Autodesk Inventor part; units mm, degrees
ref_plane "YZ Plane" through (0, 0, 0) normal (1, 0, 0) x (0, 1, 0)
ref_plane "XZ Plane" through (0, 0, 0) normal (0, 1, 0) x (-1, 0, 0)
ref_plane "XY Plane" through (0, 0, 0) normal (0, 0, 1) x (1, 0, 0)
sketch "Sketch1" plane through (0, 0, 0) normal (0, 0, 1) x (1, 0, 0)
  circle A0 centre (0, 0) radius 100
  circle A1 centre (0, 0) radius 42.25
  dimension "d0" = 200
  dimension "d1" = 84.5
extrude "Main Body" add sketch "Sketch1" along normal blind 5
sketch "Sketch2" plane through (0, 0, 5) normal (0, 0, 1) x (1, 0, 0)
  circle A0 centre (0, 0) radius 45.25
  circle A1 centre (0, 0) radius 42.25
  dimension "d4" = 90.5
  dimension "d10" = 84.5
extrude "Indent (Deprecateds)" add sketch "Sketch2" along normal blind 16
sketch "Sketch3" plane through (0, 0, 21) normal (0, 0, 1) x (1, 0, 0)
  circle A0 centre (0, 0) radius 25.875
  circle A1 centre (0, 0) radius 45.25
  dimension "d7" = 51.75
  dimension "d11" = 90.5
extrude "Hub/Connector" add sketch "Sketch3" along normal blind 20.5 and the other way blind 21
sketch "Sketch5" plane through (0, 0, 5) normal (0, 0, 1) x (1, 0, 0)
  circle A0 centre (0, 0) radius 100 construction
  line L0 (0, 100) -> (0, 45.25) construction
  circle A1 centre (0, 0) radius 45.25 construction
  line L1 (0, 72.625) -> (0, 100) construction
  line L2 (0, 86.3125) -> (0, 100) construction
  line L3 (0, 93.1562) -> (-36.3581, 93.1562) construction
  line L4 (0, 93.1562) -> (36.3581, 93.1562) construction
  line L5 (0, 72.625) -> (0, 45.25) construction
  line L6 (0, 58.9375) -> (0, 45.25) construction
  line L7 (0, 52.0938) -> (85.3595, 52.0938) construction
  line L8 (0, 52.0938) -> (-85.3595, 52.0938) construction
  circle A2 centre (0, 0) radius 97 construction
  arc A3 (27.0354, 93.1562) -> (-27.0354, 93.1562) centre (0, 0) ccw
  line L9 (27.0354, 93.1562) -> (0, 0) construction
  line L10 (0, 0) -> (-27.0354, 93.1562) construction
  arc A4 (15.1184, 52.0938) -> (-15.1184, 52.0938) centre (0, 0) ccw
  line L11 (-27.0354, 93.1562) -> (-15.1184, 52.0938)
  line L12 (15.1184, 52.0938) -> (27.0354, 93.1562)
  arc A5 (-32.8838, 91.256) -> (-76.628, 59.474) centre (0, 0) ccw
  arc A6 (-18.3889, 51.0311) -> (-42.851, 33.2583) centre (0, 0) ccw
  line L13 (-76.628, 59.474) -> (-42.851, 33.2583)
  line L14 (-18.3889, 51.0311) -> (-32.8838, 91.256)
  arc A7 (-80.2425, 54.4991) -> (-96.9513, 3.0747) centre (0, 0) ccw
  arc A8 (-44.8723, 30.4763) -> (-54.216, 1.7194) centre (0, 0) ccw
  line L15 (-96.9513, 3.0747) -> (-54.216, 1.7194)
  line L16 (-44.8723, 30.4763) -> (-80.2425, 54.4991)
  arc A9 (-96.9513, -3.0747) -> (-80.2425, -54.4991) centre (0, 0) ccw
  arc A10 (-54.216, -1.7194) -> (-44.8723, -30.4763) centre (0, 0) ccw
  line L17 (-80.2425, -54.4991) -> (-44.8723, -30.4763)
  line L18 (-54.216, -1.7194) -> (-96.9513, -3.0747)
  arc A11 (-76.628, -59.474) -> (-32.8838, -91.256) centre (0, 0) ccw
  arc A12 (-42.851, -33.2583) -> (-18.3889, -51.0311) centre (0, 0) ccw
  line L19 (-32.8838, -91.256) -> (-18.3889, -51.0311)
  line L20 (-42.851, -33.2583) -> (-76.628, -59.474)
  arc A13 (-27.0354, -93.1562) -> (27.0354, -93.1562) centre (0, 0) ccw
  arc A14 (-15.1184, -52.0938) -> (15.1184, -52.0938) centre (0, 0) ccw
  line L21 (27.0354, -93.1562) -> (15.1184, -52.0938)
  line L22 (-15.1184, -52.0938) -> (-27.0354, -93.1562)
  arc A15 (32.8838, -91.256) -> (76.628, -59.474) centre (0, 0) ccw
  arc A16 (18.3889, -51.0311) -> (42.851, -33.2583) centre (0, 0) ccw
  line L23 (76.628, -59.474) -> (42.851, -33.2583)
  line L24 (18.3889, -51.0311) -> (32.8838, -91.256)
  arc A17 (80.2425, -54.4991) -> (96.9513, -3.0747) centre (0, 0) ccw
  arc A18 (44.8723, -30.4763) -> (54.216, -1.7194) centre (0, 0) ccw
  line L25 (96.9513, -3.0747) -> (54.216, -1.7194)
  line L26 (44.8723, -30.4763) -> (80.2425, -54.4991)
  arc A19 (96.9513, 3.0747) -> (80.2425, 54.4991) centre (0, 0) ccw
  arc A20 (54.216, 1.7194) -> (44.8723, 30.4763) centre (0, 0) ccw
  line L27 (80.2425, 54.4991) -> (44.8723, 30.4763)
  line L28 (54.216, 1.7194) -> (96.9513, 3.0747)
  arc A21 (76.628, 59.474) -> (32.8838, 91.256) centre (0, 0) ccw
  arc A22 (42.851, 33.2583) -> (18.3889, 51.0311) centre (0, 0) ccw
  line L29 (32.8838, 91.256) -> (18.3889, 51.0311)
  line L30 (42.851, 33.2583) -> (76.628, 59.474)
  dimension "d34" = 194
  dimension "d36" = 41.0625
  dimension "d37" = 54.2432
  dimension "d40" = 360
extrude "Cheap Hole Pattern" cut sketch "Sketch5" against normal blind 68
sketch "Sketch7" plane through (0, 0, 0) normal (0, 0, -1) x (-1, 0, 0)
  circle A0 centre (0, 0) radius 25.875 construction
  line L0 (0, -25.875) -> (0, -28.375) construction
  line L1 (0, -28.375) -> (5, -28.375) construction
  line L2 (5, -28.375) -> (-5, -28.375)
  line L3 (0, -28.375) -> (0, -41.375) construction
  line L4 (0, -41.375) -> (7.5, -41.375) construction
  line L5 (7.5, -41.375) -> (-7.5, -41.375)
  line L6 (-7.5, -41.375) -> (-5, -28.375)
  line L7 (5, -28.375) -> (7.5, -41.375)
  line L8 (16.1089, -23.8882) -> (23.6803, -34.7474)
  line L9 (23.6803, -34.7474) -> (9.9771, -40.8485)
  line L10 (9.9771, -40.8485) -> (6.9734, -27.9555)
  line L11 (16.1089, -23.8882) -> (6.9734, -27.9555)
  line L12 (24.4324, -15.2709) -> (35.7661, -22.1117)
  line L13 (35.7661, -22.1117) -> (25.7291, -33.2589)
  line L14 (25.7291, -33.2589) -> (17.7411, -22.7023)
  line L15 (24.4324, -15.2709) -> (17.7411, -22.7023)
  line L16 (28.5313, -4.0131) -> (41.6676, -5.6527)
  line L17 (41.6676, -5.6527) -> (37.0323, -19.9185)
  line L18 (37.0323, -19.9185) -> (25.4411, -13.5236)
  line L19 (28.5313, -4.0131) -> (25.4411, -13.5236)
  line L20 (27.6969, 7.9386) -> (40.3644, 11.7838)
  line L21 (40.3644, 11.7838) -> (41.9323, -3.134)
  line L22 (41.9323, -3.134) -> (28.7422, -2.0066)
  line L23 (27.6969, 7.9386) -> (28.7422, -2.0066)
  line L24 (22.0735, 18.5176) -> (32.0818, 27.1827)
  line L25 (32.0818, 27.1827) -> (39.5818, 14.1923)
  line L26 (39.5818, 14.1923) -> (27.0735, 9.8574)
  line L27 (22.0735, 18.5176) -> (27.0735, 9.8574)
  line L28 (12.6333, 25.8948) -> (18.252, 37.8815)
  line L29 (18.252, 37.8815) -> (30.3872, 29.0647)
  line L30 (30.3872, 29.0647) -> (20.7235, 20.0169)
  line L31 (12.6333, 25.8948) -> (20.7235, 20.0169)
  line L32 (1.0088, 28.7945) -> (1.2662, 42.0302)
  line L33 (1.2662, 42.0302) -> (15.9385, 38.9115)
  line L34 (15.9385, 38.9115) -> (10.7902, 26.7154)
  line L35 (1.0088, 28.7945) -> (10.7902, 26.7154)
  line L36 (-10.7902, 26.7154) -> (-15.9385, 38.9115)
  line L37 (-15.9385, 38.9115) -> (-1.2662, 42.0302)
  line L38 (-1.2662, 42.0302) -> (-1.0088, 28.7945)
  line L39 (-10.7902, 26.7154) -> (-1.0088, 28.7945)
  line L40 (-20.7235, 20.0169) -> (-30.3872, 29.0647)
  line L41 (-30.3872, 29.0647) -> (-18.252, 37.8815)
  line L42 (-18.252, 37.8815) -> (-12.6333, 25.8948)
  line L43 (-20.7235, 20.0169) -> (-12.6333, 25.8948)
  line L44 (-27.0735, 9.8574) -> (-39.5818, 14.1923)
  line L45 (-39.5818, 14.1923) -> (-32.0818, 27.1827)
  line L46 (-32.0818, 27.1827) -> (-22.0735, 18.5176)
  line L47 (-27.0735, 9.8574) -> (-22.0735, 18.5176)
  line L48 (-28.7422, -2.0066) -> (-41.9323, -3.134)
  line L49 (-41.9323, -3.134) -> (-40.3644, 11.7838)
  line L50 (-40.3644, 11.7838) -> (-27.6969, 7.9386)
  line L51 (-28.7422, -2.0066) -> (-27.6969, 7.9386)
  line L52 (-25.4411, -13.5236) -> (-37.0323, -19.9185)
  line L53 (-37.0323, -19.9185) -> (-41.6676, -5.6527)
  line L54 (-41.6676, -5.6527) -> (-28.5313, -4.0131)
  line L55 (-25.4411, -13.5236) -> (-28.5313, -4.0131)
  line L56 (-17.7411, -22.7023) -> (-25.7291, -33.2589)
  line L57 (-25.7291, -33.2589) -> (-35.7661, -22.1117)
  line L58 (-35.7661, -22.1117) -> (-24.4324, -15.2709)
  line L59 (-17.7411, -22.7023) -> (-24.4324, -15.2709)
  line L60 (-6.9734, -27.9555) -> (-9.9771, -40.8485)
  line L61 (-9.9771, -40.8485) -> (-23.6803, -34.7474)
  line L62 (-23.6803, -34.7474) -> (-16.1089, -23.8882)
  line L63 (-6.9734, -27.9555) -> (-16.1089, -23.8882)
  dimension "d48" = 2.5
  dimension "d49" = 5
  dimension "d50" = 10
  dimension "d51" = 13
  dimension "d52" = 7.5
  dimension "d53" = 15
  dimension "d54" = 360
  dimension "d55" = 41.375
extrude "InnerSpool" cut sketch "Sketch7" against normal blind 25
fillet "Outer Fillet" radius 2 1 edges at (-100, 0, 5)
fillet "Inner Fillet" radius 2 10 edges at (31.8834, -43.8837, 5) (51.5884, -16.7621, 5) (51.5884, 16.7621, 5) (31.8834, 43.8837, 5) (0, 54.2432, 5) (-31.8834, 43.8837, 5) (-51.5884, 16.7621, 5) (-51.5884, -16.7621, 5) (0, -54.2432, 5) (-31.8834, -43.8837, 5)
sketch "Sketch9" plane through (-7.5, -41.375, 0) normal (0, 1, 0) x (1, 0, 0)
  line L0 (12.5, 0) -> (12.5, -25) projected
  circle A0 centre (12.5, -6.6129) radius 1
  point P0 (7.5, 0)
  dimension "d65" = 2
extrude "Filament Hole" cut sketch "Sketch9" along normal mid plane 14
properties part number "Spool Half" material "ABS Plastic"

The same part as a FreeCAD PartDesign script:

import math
import FreeCAD as App
import Part
import Sketcher
Q = App.Units.Quantity


def edges_at(feature, points):
    """Names of the edges that pass closest to the given points."""
    edges = feature.Shape.Edges
    near = lambda p: min(range(len(edges)), key=lambda i: edges[i].distToShape(Part.Vertex(*p))[0])
    return sorted({f"Edge{near(p) + 1}" for p in points})


def add_polygon(sketch, points):
    """Adds a closed chain of lines whose ends are joined by coincident constraints."""
    first, n = sketch.GeometryCount, len(points)
    for a, b in zip(points, points[1:] + points[:1]):
        sketch.addGeometry(Part.LineSegment(App.Vector(*a, 0), App.Vector(*b, 0)), False)
    for i in range(n):
        sketch.addConstraint(Sketcher.Constraint("Coincident", first + i, 2, first + (i + 1) % n, 1))

doc = App.newDocument("Part")
params = doc.addObject("Spreadsheet::Sheet", "Params")
for row, (alias, value) in enumerate([
    ("sketch1_diameter", "200 mm"),
    ("sketch1_diameter2", "84.5 mm"),
    ("pad1_length", "5 mm"),
    ("sketch2_diameter", "90.5 mm"),
    ("sketch2_diameter2", "84.5 mm"),
    ("pad2_length", "16 mm"),
    ("sketch3_diameter", "90.5 mm"),
    ("sketch3_diameter2", "51.75 mm"),
    ("pad3_length", "20.5 mm"),
    ("pad3_length2", "21 mm"),
    ("sketch4_radius", "97 mm"),
    ("pocket1_length", "68 mm"),
    ("sketch5_width", "10 mm"),
    ("sketch5_width2", "15 mm"),
    ("sketch5_length", "10 mm"),
    ("sketch5_length2", "15 mm"),
    ("pocket2_length", "25 mm"),
    ("fillet_radius", "2 mm"),
    ("fillet2_radius", "2 mm"),
    ("sketch6_diameter", "2 mm"),
    ("pocket3_length", "14 mm"),
], start=1):
    params.set(f"A{row}", alias)
    params.set(f"B{row}", "=" + value)
    params.setAlias(f"B{row}", alias)

body = doc.addObject("PartDesign::Body", "Body")

# Sketch on XY plane
sketch1 = doc.addObject("Sketcher::SketchObject", "Sketch")
body.addObject(sketch1)
sketch1.AttachmentSupport = (doc.XY_Plane, [""])
sketch1.MapMode = "FlatFace"
sketch1.addGeometry([
    Part.Circle(App.Vector(0, 0, 0), App.Vector(0, 0, 1), 100),
    Part.Circle(App.Vector(0, 0, 0), App.Vector(0, 0, 1), 42),
], False)
sketch1.addConstraint([
    Sketcher.Constraint("Coincident", 0, 3, -1, 1),
    Sketcher.Constraint("Coincident", 1, 3, -1, 1),
    Sketcher.Constraint("Diameter", 0, 200.0),
    Sketcher.Constraint("Diameter", 1, 84.5),
])
sketch1.setExpression("Constraints[2]", "Params.sketch1_diameter")
sketch1.setExpression("Constraints[3]", "Params.sketch1_diameter2")
pad1 = doc.addObject("PartDesign::Pad", "Pad")
body.addObject(pad1)
pad1.Profile = sketch1
pad1.setExpression("Length", "Params.pad1_length")

# Sketch on XY plane
sketch2 = doc.addObject("Sketcher::SketchObject", "Sketch001")
body.addObject(sketch2)
sketch2.AttachmentSupport = (doc.XY_Plane, [""])
sketch2.MapMode = "FlatFace"
sketch2.AttachmentOffset = App.Placement(App.Vector(0, 0, 5), App.Rotation())
sketch2.addGeometry([
    Part.Circle(App.Vector(0, 0, 0), App.Vector(0, 0, 1), 45),
    Part.Circle(App.Vector(0, 0, 0), App.Vector(0, 0, 1), 42),
], False)
sketch2.addConstraint([
    Sketcher.Constraint("Coincident", 0, 3, -1, 1),
    Sketcher.Constraint("Coincident", 1, 3, -1, 1),
    Sketcher.Constraint("Diameter", 0, 90.5),
    Sketcher.Constraint("Diameter", 1, 84.5),
])
sketch2.setExpression("Constraints[2]", "Params.sketch2_diameter")
sketch2.setExpression("Constraints[3]", "Params.sketch2_diameter2")
pad2 = doc.addObject("PartDesign::Pad", "Pad001")
body.addObject(pad2)
pad2.Profile = sketch2
pad2.setExpression("Length", "Params.pad2_length")

# Sketch on XY plane
sketch3 = doc.addObject("Sketcher::SketchObject", "Sketch002")
body.addObject(sketch3)
sketch3.AttachmentSupport = (doc.XY_Plane, [""])
sketch3.MapMode = "FlatFace"
sketch3.AttachmentOffset = App.Placement(App.Vector(0, 0, 21), App.Rotation())
sketch3.addGeometry([
    Part.Circle(App.Vector(0, 0, 0), App.Vector(0, 0, 1), 45),
    Part.Circle(App.Vector(0, 0, 0), App.Vector(0, 0, 1), 26),
], False)
sketch3.addConstraint([
    Sketcher.Constraint("Coincident", 0, 3, -1, 1),
    Sketcher.Constraint("Coincident", 1, 3, -1, 1),
    Sketcher.Constraint("Diameter", 0, 90.5),
    Sketcher.Constraint("Diameter", 1, 51.75),
])
sketch3.setExpression("Constraints[2]", "Params.sketch3_diameter")
sketch3.setExpression("Constraints[3]", "Params.sketch3_diameter2")
pad3 = doc.addObject("PartDesign::Pad", "Pad002")
body.addObject(pad3)
pad3.Profile = sketch3
pad3.Type = "TwoLengths"
pad3.setExpression("Length", "Params.pad3_length")
pad3.setExpression("Length2", "Params.pad3_length2")

# Sketch on XY plane
sketch4 = doc.addObject("Sketcher::SketchObject", "Sketch003")
body.addObject(sketch4)
sketch4.AttachmentSupport = (doc.XY_Plane, [""])
sketch4.MapMode = "FlatFace"
sketch4.AttachmentOffset = App.Placement(App.Vector(0, 0, 5), App.Rotation())
sketch4.addGeometry([
    Part.LineSegment(App.Vector(15, 52, 0), App.Vector(27, 93, 0)),  # 0
    Part.ArcOfCircle(Part.Circle(App.Vector(0, 0, 0), App.Vector(0, 0, 1), 97), math.radians(74), math.radians(106)),  # 1
    Part.LineSegment(App.Vector(-27, 93, 0), App.Vector(-15, 52, 0)),  # 2
    Part.ArcOfCircle(Part.Circle(App.Vector(0, 0, 0), App.Vector(0, 0, 1), 54), math.radians(74), math.radians(106)),  # 3
    Part.LineSegment(App.Vector(-18, 51, 0), App.Vector(-33, 91, 0)),  # 4
    Part.ArcOfCircle(Part.Circle(App.Vector(0, 0, 0), App.Vector(0, 0, 1), 97), math.radians(110), math.radians(142)),  # 5
    Part.LineSegment(App.Vector(-77, 59, 0), App.Vector(-43, 33, 0)),  # 6
    Part.ArcOfCircle(Part.Circle(App.Vector(0, 0, 0), App.Vector(0, 0, 1), 54), math.radians(110), math.radians(142)),  # 7
    Part.LineSegment(App.Vector(-45, 30, 0), App.Vector(-80, 54, 0)),  # 8
    Part.ArcOfCircle(Part.Circle(App.Vector(0, 0, 0), App.Vector(0, 0, 1), 97), math.radians(146), math.radians(178)),  # 9
    Part.LineSegment(App.Vector(-97, 3, 0), App.Vector(-54, 2, 0)),  # 10
    Part.ArcOfCircle(Part.Circle(App.Vector(0, 0, 0), App.Vector(0, 0, 1), 54), math.radians(146), math.radians(178)),  # 11
    Part.LineSegment(App.Vector(-54, -2, 0), App.Vector(-97, -3, 0)),  # 12
    Part.ArcOfCircle(Part.Circle(App.Vector(0, 0, 0), App.Vector(0, 0, 1), 97), math.radians(-178), math.radians(-146)),  # 13
    Part.LineSegment(App.Vector(-80, -54, 0), App.Vector(-45, -30, 0)),  # 14
    Part.ArcOfCircle(Part.Circle(App.Vector(0, 0, 0), App.Vector(0, 0, 1), 54), math.radians(-178), math.radians(-146)),  # 15
    Part.LineSegment(App.Vector(-43, -33, 0), App.Vector(-77, -59, 0)),  # 16
    Part.ArcOfCircle(Part.Circle(App.Vector(0, 0, 0), App.Vector(0, 0, 1), 97), math.radians(-142), math.radians(-110)),  # 17
    Part.LineSegment(App.Vector(-33, -91, 0), App.Vector(-18, -51, 0)),  # 18
    Part.ArcOfCircle(Part.Circle(App.Vector(0, 0, 0), App.Vector(0, 0, 1), 54), math.radians(-142), math.radians(-110)),  # 19
    Part.LineSegment(App.Vector(-15, -52, 0), App.Vector(-27, -93, 0)),  # 20
    Part.ArcOfCircle(Part.Circle(App.Vector(0, 0, 0), App.Vector(0, 0, 1), 97), math.radians(-106), math.radians(-74)),  # 21
    Part.LineSegment(App.Vector(27, -93, 0), App.Vector(15, -52, 0)),  # 22
    Part.ArcOfCircle(Part.Circle(App.Vector(0, 0, 0), App.Vector(0, 0, 1), 54), math.radians(-106), math.radians(-74)),  # 23
    Part.LineSegment(App.Vector(18, -51, 0), App.Vector(33, -91, 0)),  # 24
    Part.ArcOfCircle(Part.Circle(App.Vector(0, 0, 0), App.Vector(0, 0, 1), 97), math.radians(-70), math.radians(-38)),  # 25
    Part.LineSegment(App.Vector(77, -59, 0), App.Vector(43, -33, 0)),  # 26
    Part.ArcOfCircle(Part.Circle(App.Vector(0, 0, 0), App.Vector(0, 0, 1), 54), math.radians(-70), math.radians(-38)),  # 27
    Part.LineSegment(App.Vector(45, -30, 0), App.Vector(80, -54, 0)),  # 28
    Part.ArcOfCircle(Part.Circle(App.Vector(0, 0, 0), App.Vector(0, 0, 1), 97), math.radians(-34), math.radians(-2)),  # 29
    Part.LineSegment(App.Vector(97, -3, 0), App.Vector(54, -2, 0)),  # 30
    Part.ArcOfCircle(Part.Circle(App.Vector(0, 0, 0), App.Vector(0, 0, 1), 54), math.radians(-34), math.radians(-2)),  # 31
    Part.LineSegment(App.Vector(54, 2, 0), App.Vector(97, 3, 0)),  # 32
    Part.ArcOfCircle(Part.Circle(App.Vector(0, 0, 0), App.Vector(0, 0, 1), 97), math.radians(2), math.radians(34)),  # 33
    Part.LineSegment(App.Vector(80, 54, 0), App.Vector(45, 30, 0)),  # 34
    Part.ArcOfCircle(Part.Circle(App.Vector(0, 0, 0), App.Vector(0, 0, 1), 54), math.radians(2), math.radians(34)),  # 35
    Part.LineSegment(App.Vector(43, 33, 0), App.Vector(77, 59, 0)),  # 36
    Part.ArcOfCircle(Part.Circle(App.Vector(0, 0, 0), App.Vector(0, 0, 1), 97), math.radians(38), math.radians(70)),  # 37
    Part.LineSegment(App.Vector(33, 91, 0), App.Vector(18, 51, 0)),  # 38
    Part.ArcOfCircle(Part.Circle(App.Vector(0, 0, 0), App.Vector(0, 0, 1), 54), math.radians(38), math.radians(70)),  # 39
], False)
sketch4.addConstraint([
    Sketcher.Constraint("Coincident", 0, 2, 1, 1),
    Sketcher.Constraint("Coincident", 1, 2, 2, 1),
    Sketcher.Constraint("Coincident", 2, 2, 3, 2),
    Sketcher.Constraint("Coincident", 3, 1, 0, 1),
    Sketcher.Constraint("Coincident", 4, 2, 5, 1),
    Sketcher.Constraint("Coincident", 5, 2, 6, 1),
    Sketcher.Constraint("Coincident", 6, 2, 7, 2),
    Sketcher.Constraint("Coincident", 7, 1, 4, 1),
    Sketcher.Constraint("Coincident", 8, 2, 9, 1),
    Sketcher.Constraint("Coincident", 9, 2, 10, 1),
    Sketcher.Constraint("Coincident", 10, 2, 11, 2),
    Sketcher.Constraint("Coincident", 11, 1, 8, 1),
    Sketcher.Constraint("Coincident", 12, 2, 13, 1),
    Sketcher.Constraint("Coincident", 13, 2, 14, 1),
    Sketcher.Constraint("Coincident", 14, 2, 15, 2),
    Sketcher.Constraint("Coincident", 15, 1, 12, 1),
    Sketcher.Constraint("Coincident", 16, 2, 17, 1),
    Sketcher.Constraint("Coincident", 17, 2, 18, 1),
    Sketcher.Constraint("Coincident", 18, 2, 19, 2),
    Sketcher.Constraint("Coincident", 19, 1, 16, 1),
    Sketcher.Constraint("Coincident", 20, 2, 21, 1),
    Sketcher.Constraint("Coincident", 21, 2, 22, 1),
    Sketcher.Constraint("Coincident", 22, 2, 23, 2),
    Sketcher.Constraint("Coincident", 23, 1, 20, 1),
    Sketcher.Constraint("Coincident", 24, 2, 25, 1),
    Sketcher.Constraint("Coincident", 25, 2, 26, 1),
    Sketcher.Constraint("Coincident", 26, 2, 27, 2),
    Sketcher.Constraint("Coincident", 27, 1, 24, 1),
    Sketcher.Constraint("Coincident", 28, 2, 29, 1),
    Sketcher.Constraint("Coincident", 29, 2, 30, 1),
    Sketcher.Constraint("Coincident", 30, 2, 31, 2),
    Sketcher.Constraint("Coincident", 31, 1, 28, 1),
    Sketcher.Constraint("Coincident", 32, 2, 33, 1),
    Sketcher.Constraint("Coincident", 33, 2, 34, 1),
    Sketcher.Constraint("Coincident", 34, 2, 35, 2),
    Sketcher.Constraint("Coincident", 35, 1, 32, 1),
    Sketcher.Constraint("Coincident", 36, 2, 37, 1),
    Sketcher.Constraint("Coincident", 37, 2, 38, 1),
    Sketcher.Constraint("Coincident", 38, 2, 39, 2),
    Sketcher.Constraint("Coincident", 39, 1, 36, 1),
    Sketcher.Constraint("Coincident", 1, 3, -1, 1),
    Sketcher.Constraint("Coincident", 3, 3, -1, 1),
    Sketcher.Constraint("Coincident", 5, 3, -1, 1),
    Sketcher.Constraint("Coincident", 7, 3, -1, 1),
    Sketcher.Constraint("Coincident", 9, 3, -1, 1),
    Sketcher.Constraint("Coincident", 11, 3, -1, 1),
    Sketcher.Constraint("Coincident", 13, 3, -1, 1),
    Sketcher.Constraint("Coincident", 15, 3, -1, 1),
    Sketcher.Constraint("Coincident", 17, 3, -1, 1),
    Sketcher.Constraint("Coincident", 19, 3, -1, 1),
    Sketcher.Constraint("Coincident", 21, 3, -1, 1),
    Sketcher.Constraint("Coincident", 23, 3, -1, 1),
    Sketcher.Constraint("Coincident", 25, 3, -1, 1),
    Sketcher.Constraint("Coincident", 27, 3, -1, 1),
    Sketcher.Constraint("Coincident", 29, 3, -1, 1),
    Sketcher.Constraint("Coincident", 31, 3, -1, 1),
    Sketcher.Constraint("Coincident", 33, 3, -1, 1),
    Sketcher.Constraint("Coincident", 35, 3, -1, 1),
    Sketcher.Constraint("Coincident", 37, 3, -1, 1),
    Sketcher.Constraint("Coincident", 39, 3, -1, 1),
    Sketcher.Constraint("Equal", 1, 5),
    Sketcher.Constraint("Equal", 3, 7),
    Sketcher.Constraint("Equal", 5, 9),
    Sketcher.Constraint("Equal", 7, 11),
    Sketcher.Constraint("Equal", 9, 13),
    Sketcher.Constraint("Equal", 11, 15),
    Sketcher.Constraint("Equal", 13, 17),
    Sketcher.Constraint("Equal", 15, 19),
    Sketcher.Constraint("Equal", 17, 21),
    Sketcher.Constraint("Equal", 19, 23),
    Sketcher.Constraint("Equal", 21, 25),
    Sketcher.Constraint("Equal", 23, 27),
    Sketcher.Constraint("Equal", 25, 29),
    Sketcher.Constraint("Equal", 27, 31),
    Sketcher.Constraint("Equal", 29, 33),
    Sketcher.Constraint("Equal", 31, 35),
    Sketcher.Constraint("Equal", 33, 37),
    Sketcher.Constraint("Equal", 35, 39),
    Sketcher.Constraint("Parallel", 0, 20),
    Sketcher.Constraint("Parallel", 2, 22),
    Sketcher.Constraint("Parallel", 4, 24),
    Sketcher.Constraint("Parallel", 6, 26),
    Sketcher.Constraint("Parallel", 8, 28),
    Sketcher.Constraint("Parallel", 10, 30),
    Sketcher.Constraint("Parallel", 12, 32),
    Sketcher.Constraint("Parallel", 14, 34),
    Sketcher.Constraint("Parallel", 16, 36),
    Sketcher.Constraint("Parallel", 18, 38),
    Sketcher.Constraint("Horizontal", 0, 2, 1, 2),
    Sketcher.Constraint("Horizontal", 2, 2, 3, 1),
    Sketcher.Constraint("Horizontal", 20, 2, 21, 2),
    Sketcher.Constraint("Horizontal", 17, 2, 24, 2),
    Sketcher.Constraint("Horizontal", 16, 2, 25, 2),
    Sketcher.Constraint("Horizontal", 19, 1, 26, 2),
    Sketcher.Constraint("Horizontal", 18, 2, 27, 1),
    Sketcher.Constraint("Horizontal", 13, 2, 28, 2),
    Sketcher.Constraint("Horizontal", 12, 2, 29, 2),
    Sketcher.Constraint("Horizontal", 15, 1, 30, 2),
    Sketcher.Constraint("Horizontal", 14, 2, 31, 1),
    Sketcher.Constraint("Horizontal", 9, 2, 32, 2),
    Sketcher.Constraint("Horizontal", 8, 2, 33, 2),
    Sketcher.Constraint("Horizontal", 5, 2, 36, 2),
    Sketcher.Constraint("Horizontal", 4, 2, 37, 2),
    Sketcher.Constraint("Vertical", 9, 2, 12, 2),
    Sketcher.Constraint("Vertical", 8, 2, 13, 2),
    Sketcher.Constraint("Vertical", 5, 2, 16, 2),
    Sketcher.Constraint("Vertical", 4, 2, 17, 2),
    Sketcher.Constraint("Vertical", 1, 2, 20, 2),
    Sketcher.Constraint("Radius", 1, 97.0),
    Sketcher.Constraint("Radius", 3, 54.2432),
    Sketcher.Constraint("DistanceY", 2, 2, 1, 2, 41.0624),
    Sketcher.Constraint("DistanceY", 20, 2, 14, 2, 62.68),
    Sketcher.Constraint("DistanceY", -1, 1, 4, 2, 91.256),
    Sketcher.Constraint("DistanceX", 5, 2, -1, 1, 76.628),
    Sketcher.Constraint("DistanceX", 6, 2, -1, 1, 42.851),
    Sketcher.Constraint("DistanceX", 7, 1, -1, 1, 18.389),
    Sketcher.Constraint("DistanceY", -1, 1, 8, 2, 54.499),
    Sketcher.Constraint("DistanceX", 10, 2, -1, 1, 54.216),
    Sketcher.Constraint("DistanceY", 7, 1, 1, 2, 42.125),
    Sketcher.Constraint("DistanceY", 9, 2, 2, 2, 49.019),
])
sketch4.setExpression("Constraints[108]", "Params.sketch4_radius")
pocket1 = doc.addObject("PartDesign::Pocket", "Pocket")
body.addObject(pocket1)
pocket1.Profile = sketch4
pocket1.setExpression("Length", "Params.pocket1_length")

# Sketch on XY plane
sketch5 = doc.addObject("Sketcher::SketchObject", "Sketch004")
body.addObject(sketch5)
sketch5.AttachmentSupport = (doc.XY_Plane, [""])
sketch5.MapMode = "FlatFace"
add_polygon(sketch5, [(-8, -41), (-5, -28), (5, -28), (8, -41)])  # lines 0-3
add_polygon(sketch5, [(-24, -35), (-16, -24), (-7, -28), (-10, -41)])  # lines 4-7
add_polygon(sketch5, [(-36, -22), (-24, -15), (-18, -23), (-26, -33)])  # lines 8-11
add_polygon(sketch5, [(-42, -6), (-29, -4), (-25, -14), (-37, -20)])  # lines 12-15
add_polygon(sketch5, [(-40, 12), (-28, 8), (-29, -2), (-42, -3)])  # lines 16-19
add_polygon(sketch5, [(-32, 27), (-22, 19), (-27, 10), (-40, 14)])  # lines 20-23
add_polygon(sketch5, [(-18, 38), (-13, 26), (-21, 20), (-30, 29)])  # lines 24-27
add_polygon(sketch5, [(-1, 42), (-1, 29), (-11, 27), (-16, 39)])  # lines 28-31
add_polygon(sketch5, [(16, 39), (11, 27), (1, 29), (1, 42)])  # lines 32-35
add_polygon(sketch5, [(30, 29), (21, 20), (13, 26), (18, 38)])  # lines 36-39
add_polygon(sketch5, [(40, 14), (27, 10), (22, 19), (32, 27)])  # lines 40-43
add_polygon(sketch5, [(42, -3), (29, -2), (28, 8), (40, 12)])  # lines 44-47
add_polygon(sketch5, [(37, -20), (25, -14), (29, -4), (42, -6)])  # lines 48-51
add_polygon(sketch5, [(26, -33), (18, -23), (24, -15), (36, -22)])  # lines 52-55
add_polygon(sketch5, [(10, -41), (7, -28), (16, -24), (24, -35)])  # lines 56-59
sketch5.addConstraint([
    Sketcher.Constraint("Horizontal", 1),
    Sketcher.Constraint("Horizontal", 3),
    Sketcher.Constraint("Symmetric", 29, 2, 32, 2, -2),
    Sketcher.Constraint("Symmetric", 28, 2, 33, 2, -2),
    Sketcher.Constraint("Symmetric", 31, 2, 34, 2, -2),
    Sketcher.Constraint("Symmetric", 30, 2, 35, 2, -2),
    Sketcher.Constraint("Symmetric", 25, 2, 36, 2, -2),
    Sketcher.Constraint("Symmetric", 24, 2, 37, 2, -2),
    Sketcher.Constraint("Symmetric", 27, 2, 38, 2, -2),
    Sketcher.Constraint("Symmetric", 26, 2, 39, 2, -2),
    Sketcher.Constraint("Symmetric", 21, 2, 40, 2, -2),
    Sketcher.Constraint("Symmetric", 20, 2, 41, 2, -2),
    Sketcher.Constraint("Symmetric", 23, 2, 42, 2, -2),
    Sketcher.Constraint("Symmetric", 22, 2, 43, 2, -2),
    Sketcher.Constraint("Symmetric", 17, 2, 44, 2, -2),
    Sketcher.Constraint("Symmetric", 16, 2, 45, 2, -2),
    Sketcher.Constraint("Symmetric", 19, 2, 46, 2, -2),
    Sketcher.Constraint("Symmetric", 18, 2, 47, 2, -2),
    Sketcher.Constraint("Symmetric", 13, 2, 48, 2, -2),
    Sketcher.Constraint("Symmetric", 12, 2, 49, 2, -2),
    Sketcher.Constraint("Symmetric", 15, 2, 50, 2, -2),
    Sketcher.Constraint("Symmetric", 14, 2, 51, 2, -2),
    Sketcher.Constraint("Symmetric", 9, 2, 52, 2, -2),
    Sketcher.Constraint("Symmetric", 8, 2, 53, 2, -2),
    Sketcher.Constraint("Symmetric", 11, 2, 54, 2, -2),
    Sketcher.Constraint("Symmetric", 10, 2, 55, 2, -2),
    Sketcher.Constraint("Symmetric", 5, 2, 56, 2, -2),
    Sketcher.Constraint("Symmetric", 4, 2, 57, 2, -2),
    Sketcher.Constraint("Symmetric", 7, 2, 58, 2, -2),
    Sketcher.Constraint("Symmetric", 6, 2, 59, 2, -2),
    Sketcher.Constraint("Parallel", 5, 7),
    Sketcher.Constraint("Parallel", 9, 11),
    Sketcher.Constraint("Parallel", 13, 15),
    Sketcher.Constraint("Parallel", 17, 19),
    Sketcher.Constraint("Parallel", 21, 23),
    Sketcher.Constraint("Parallel", 25, 27),
    Sketcher.Constraint("Parallel", 29, 31),
    Sketcher.Constraint("Equal", 0, 2),
    Sketcher.Constraint("Equal", 2, 4),
    Sketcher.Constraint("Equal", 4, 6),
    Sketcher.Constraint("Equal", 6, 8),
    Sketcher.Constraint("Equal", 5, 9),
    Sketcher.Constraint("Equal", 8, 10),
    Sketcher.Constraint("Equal", 7, 11),
    Sketcher.Constraint("Equal", 10, 12),
    Sketcher.Constraint("Equal", 9, 13),
    Sketcher.Constraint("Equal", 12, 14),
    Sketcher.Constraint("Equal", 11, 15),
    Sketcher.Constraint("Equal", 14, 16),
    Sketcher.Constraint("Equal", 13, 17),
    Sketcher.Constraint("Equal", 16, 18),
    Sketcher.Constraint("Equal", 15, 19),
    Sketcher.Constraint("Equal", 18, 20),
    Sketcher.Constraint("Equal", 17, 21),
    Sketcher.Constraint("Equal", 20, 22),
    Sketcher.Constraint("Equal", 19, 23),
    Sketcher.Constraint("Equal", 22, 24),
    Sketcher.Constraint("Equal", 21, 25),
    Sketcher.Constraint("Equal", 24, 26),
    Sketcher.Constraint("Equal", 23, 27),
    Sketcher.Constraint("Equal", 26, 28),
    Sketcher.Constraint("Equal", 25, 29),
    Sketcher.Constraint("Equal", 28, 30),
    Sketcher.Constraint("Equal", 27, 31),
    Sketcher.Constraint("DistanceX", 1, 1, 1, 2, 10.0),
    Sketcher.Constraint("DistanceX", 3, 2, 3, 1, 15.0),
    Sketcher.Constraint("Distance", 5, 10.0),
    Sketcher.Constraint("Distance", 7, 15.0),
    Sketcher.Constraint("DistanceX", 0, 2, -1, 1, 5.0),
    Sketcher.Constraint("DistanceY", 2, 2, 1, 2, 13.0),
    Sketcher.Constraint("DistanceX", 21, 2, 20, 2, 5.0),
    Sketcher.Constraint("Angle", 5, Q("-23.9995 deg")),
    Sketcher.Constraint("Angle", 9, Q("-47.9998 deg")),
    Sketcher.Constraint("Angle", 13, Q("-71.9997 deg")),
    Sketcher.Constraint("Angle", 17, Q("-96 deg")),
    Sketcher.Constraint("Angle", 25, Q("-144 deg")),
    Sketcher.Constraint("Angle", 29, Q("-168 deg")),
    Sketcher.Constraint("DistanceY", 2, 2, -1, 1, 41.375),
    Sketcher.Constraint("DistanceX", 13, 2, 9, 2, 7.7),
    Sketcher.Constraint("DistanceX", 18, 2, 14, 2, 4.9),
    Sketcher.Constraint("DistanceX", 20, 2, 25, 2, 1.35),
    Sketcher.Constraint("DistanceY", 27, 2, 30, 2, 1.03),
    Sketcher.Constraint("DistanceX", 4, 2, -1, 1, 16.109),
    Sketcher.Constraint("DistanceY", 8, 2, -1, 1, 15.271),
    Sketcher.Constraint("DistanceX", 9, 2, -1, 1, 17.741),
    Sketcher.Constraint("DistanceY", 12, 2, -1, 1, 4.013),
    Sketcher.Constraint("DistanceY", 18, 2, -1, 1, 3.134),
    Sketcher.Constraint("DistanceY", -1, 1, 25, 2, 20.017),
    Sketcher.Constraint("DistanceX", 27, 2, -1, 1, 18.252),
    Sketcher.Constraint("DistanceY", 4, 2, 9, 2, 1.186),
    Sketcher.Constraint("DistanceY", 16, 2, 20, 2, 10.579),
    Sketcher.Constraint("DistanceX", 24, 2, 29, 2, 1.843),
])
sketch5.setExpression("Constraints[124]", "Params.sketch5_width")
sketch5.setExpression("Constraints[125]", "Params.sketch5_width2")
sketch5.setExpression("Constraints[126]", "Params.sketch5_length")
sketch5.setExpression("Constraints[127]", "Params.sketch5_length2")
pocket2 = doc.addObject("PartDesign::Pocket", "Pocket001")
body.addObject(pocket2)
pocket2.Profile = sketch5
pocket2.setExpression("Length", "Params.pocket2_length")
pocket2.Reversed = True
doc.recompute()

fillet = doc.addObject("PartDesign::Fillet", "Fillet")
body.addObject(fillet)
fillet.Base = (pocket2, edges_at(pocket2, [(-100, 0, 5)]))
fillet.setExpression("Radius", "Params.fillet_radius")
doc.recompute()

fillet2 = doc.addObject("PartDesign::Fillet", "Fillet001")
body.addObject(fillet2)
fillet2.Base = (fillet, edges_at(fillet, [
    (31.883, -43.884, 5),
    (51.588, -16.762, 5),
    (51.588, 16.762, 5),
    (31.883, 43.884, 5),
    (0, 54.243, 5),
    (-31.883, 43.884, 5),
    (-51.588, 16.762, 5),
    (-51.588, -16.762, 5),
    (0, -54.243, 5),
    (-31.883, -43.884, 5),
]))
fillet2.setExpression("Radius", "Params.fillet2_radius")

# Sketch on XZ plane
sketch6 = doc.addObject("Sketcher::SketchObject", "Sketch005")
body.addObject(sketch6)
sketch6.AttachmentSupport = (doc.XZ_Plane, [""])
sketch6.MapMode = "FlatFace"
sketch6.AttachmentOffset = App.Placement(App.Vector(0, 0, 41.375), App.Rotation())
sketch6.addGeometry(Part.Circle(App.Vector(5, 6.6, 0), App.Vector(0, 0, 1), 1), False)
sketch6.addConstraint([
    Sketcher.Constraint("Diameter", 0, 2.0),
    Sketcher.Constraint("DistanceX", -1, 1, 0, 3, 5.0),
    Sketcher.Constraint("DistanceY", -1, 1, 0, 3, 6.613),
])
sketch6.setExpression("Constraints[0]", "Params.sketch6_diameter")
pocket3 = doc.addObject("PartDesign::Pocket", "Pocket002")
body.addObject(pocket3)
pocket3.Profile = sketch6
pocket3.setExpression("Length", "Params.pocket3_length")
pocket3.Midplane = True

doc.recompute()
